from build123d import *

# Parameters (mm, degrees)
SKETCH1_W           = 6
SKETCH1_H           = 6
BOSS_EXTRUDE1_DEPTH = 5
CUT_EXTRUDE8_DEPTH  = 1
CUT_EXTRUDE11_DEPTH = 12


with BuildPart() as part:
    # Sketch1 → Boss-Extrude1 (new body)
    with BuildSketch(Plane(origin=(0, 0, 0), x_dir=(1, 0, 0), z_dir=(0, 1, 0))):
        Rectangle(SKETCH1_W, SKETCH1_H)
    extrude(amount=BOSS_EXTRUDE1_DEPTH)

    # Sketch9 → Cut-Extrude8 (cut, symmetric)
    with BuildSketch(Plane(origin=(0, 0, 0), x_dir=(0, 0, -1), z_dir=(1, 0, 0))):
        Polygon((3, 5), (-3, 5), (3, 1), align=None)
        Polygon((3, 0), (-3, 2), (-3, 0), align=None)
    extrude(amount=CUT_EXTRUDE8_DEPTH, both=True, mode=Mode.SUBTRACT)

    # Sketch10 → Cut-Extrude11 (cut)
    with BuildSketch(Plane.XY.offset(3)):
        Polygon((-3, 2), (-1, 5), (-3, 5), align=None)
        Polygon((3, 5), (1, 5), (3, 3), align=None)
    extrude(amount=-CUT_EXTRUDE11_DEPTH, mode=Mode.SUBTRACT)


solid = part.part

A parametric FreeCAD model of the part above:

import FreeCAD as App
import Part
import Sketcher

V = App.Vector
Q = App.Units.Quantity

doc = App.newDocument("Part")
body = doc.addObject("PartDesign::Body", "Body")

# Sketch on XZ plane
sketch1 = body.newObject("Sketcher::SketchObject", "Sketch")
sketch1.AttachmentSupport = (doc.getObject("XZ_Plane"), [""])
sketch1.MapMode = "FlatFace"
sketch1.addGeometry(Part.LineSegment(V(-3, -3, 0), V(-3, 3, 0)), False)
sketch1.addGeometry(Part.LineSegment(V(-3, 3, 0), V(3, 3, 0)), False)
sketch1.addGeometry(Part.LineSegment(V(3, 3, 0), V(3, -3, 0)), False)
sketch1.addGeometry(Part.LineSegment(V(3, -3, 0), V(-3, -3, 0)), False)
sketch1.addConstraint(Sketcher.Constraint("Coincident", 0, 2, 1, 1))
sketch1.addConstraint(Sketcher.Constraint("Coincident", 1, 2, 2, 1))
sketch1.addConstraint(Sketcher.Constraint("Coincident", 2, 2, 3, 1))
sketch1.addConstraint(Sketcher.Constraint("Coincident", 3, 2, 0, 1))
sketch1.addConstraint(Sketcher.Constraint("Vertical", 0))
sketch1.addConstraint(Sketcher.Constraint("Horizontal", 1))
sketch1.addConstraint(Sketcher.Constraint("Vertical", 2))
sketch1.addConstraint(Sketcher.Constraint("Horizontal", 3))
sketch1.addConstraint(Sketcher.Constraint("Symmetric", 0, 2, 2, 2, -1, 1))
sketch1.addConstraint(Sketcher.Constraint("Equal", 3, 0))
sketch1.addConstraint(Sketcher.Constraint("DistanceX", 1, 1, 1, 2, Q("6 mm")))
pad1 = body.newObject("PartDesign::Pad", "Pad")
pad1.Profile = sketch1
pad1.Length = 5
pad1.Reversed = True

# Sketch on YZ plane
sketch2 = body.newObject("Sketcher::SketchObject", "Sketch001")
sketch2.AttachmentSupport = (doc.getObject("YZ_Plane"), [""])
sketch2.MapMode = "FlatFace"
sketch2.addGeometry(Part.LineSegment(V(5, -3, 0), V(5, 3, 0)), False)
sketch2.addGeometry(Part.LineSegment(V(5, 3, 0), V(1, -3, 0)), False)
sketch2.addGeometry(Part.LineSegment(V(1, -3, 0), V(5, -3, 0)), False)
sketch2.addGeometry(Part.LineSegment(V(0, -3, 0), V(2, 3, 0)), False)
sketch2.addGeometry(Part.LineSegment(V(2, 3, 0), V(0, 3, 0)), False)
sketch2.addGeometry(Part.LineSegment(V(0, 3, 0), V(0, -3, 0)), False)
sketch2.addConstraint(Sketcher.Constraint("Coincident", 0, 2, 1, 1))
sketch2.addConstraint(Sketcher.Constraint("Coincident", 1, 2, 2, 1))
sketch2.addConstraint(Sketcher.Constraint("Coincident", 2, 2, 0, 1))
sketch2.addConstraint(Sketcher.Constraint("Coincident", 3, 2, 4, 1))
sketch2.addConstraint(Sketcher.Constraint("Coincident", 4, 2, 5, 1))
sketch2.addConstraint(Sketcher.Constraint("Coincident", 5, 2, 3, 1))
sketch2.addConstraint(Sketcher.Constraint("Vertical", 0))
sketch2.addConstraint(Sketcher.Constraint("Horizontal", 2))
sketch2.addConstraint(Sketcher.Constraint("Horizontal", 4))
sketch2.addConstraint(Sketcher.Constraint("Vertical", 5))
sketch2.addConstraint(Sketcher.Constraint("Symmetric", 4, 2, 5, 2, -1, 1))
sketch2.addConstraint(Sketcher.Constraint("Horizontal", 0, 2, 3, 2))
sketch2.addConstraint(Sketcher.Constraint("Horizontal", 2, 2, 5, 2))
sketch2.addConstraint(Sketcher.Constraint("DistanceX", 2, 1, 2, 2, Q("4 mm")))
sketch2.addConstraint(Sketcher.Constraint("DistanceX", 4, 2, 4, 1, Q("2 mm")))
sketch2.addConstraint(Sketcher.Constraint("DistanceY", 0, 1, 0, 2, Q("6 mm")))
sketch2.addConstraint(Sketcher.Constraint("DistanceX", -1, 1, 0, 2, Q("5 mm")))
pocket1 = body.newObject("PartDesign::Pocket", "Pocket")
pocket1.Profile = sketch2
pocket1.Length = 2
pocket1.Midplane = True

# Sketch on XY plane
sketch3 = body.newObject("Sketcher::SketchObject", "Sketch002")
sketch3.AttachmentSupport = (doc.getObject("XY_Plane"), [""])
sketch3.MapMode = "FlatFace"
sketch3.AttachmentOffset = App.Placement(V(0, 0, 3), App.Rotation())
sketch3.addGeometry(Part.LineSegment(V(-3, 2, 0), V(-1, 5, 0)), False)
sketch3.addGeometry(Part.LineSegment(V(-1, 5, 0), V(-3, 5, 0)), False)
sketch3.addGeometry(Part.LineSegment(V(-3, 5, 0), V(-3, 2, 0)), False)
sketch3.addGeometry(Part.LineSegment(V(3, 5, 0), V(1, 5, 0)), False)
sketch3.addGeometry(Part.LineSegment(V(1, 5, 0), V(3, 3, 0)), False)
sketch3.addGeometry(Part.LineSegment(V(3, 3, 0), V(3, 5, 0)), False)
sketch3.addConstraint(Sketcher.Constraint("Coincident", 0, 2, 1, 1))
sketch3.addConstraint(Sketcher.Constraint("Coincident", 1, 2, 2, 1))
sketch3.addConstraint(Sketcher.Constraint("Coincident", 2, 2, 0, 1))
sketch3.addConstraint(Sketcher.Constraint("Coincident", 3, 2, 4, 1))
sketch3.addConstraint(Sketcher.Constraint("Coincident", 4, 2, 5, 1))
sketch3.addConstraint(Sketcher.Constraint("Coincident", 5, 2, 3, 1))
sketch3.addConstraint(Sketcher.Constraint("Horizontal", 1))
sketch3.addConstraint(Sketcher.Constraint("Vertical", 2))
sketch3.addConstraint(Sketcher.Constraint("Horizontal", 3))
sketch3.addConstraint(Sketcher.Constraint("Vertical", 5))
sketch3.addConstraint(Sketcher.Constraint("Symmetric", 0, 2, 3, 2, -2))
sketch3.addConstraint(Sketcher.Constraint("Equal", 1, 3))
sketch3.addConstraint(Sketcher.Constraint("Equal", 3, 5))
sketch3.addConstraint(Sketcher.Constraint("DistanceX", 1, 2, 1, 1, Q("2 mm")))
sketch3.addConstraint(Sketcher.Constraint("DistanceY", 2, 2, 2, 1, Q("3 mm")))
sketch3.addConstraint(Sketcher.Constraint("DistanceX", 0, 2, -1, 1, Q("1 mm")))
sketch3.addConstraint(Sketcher.Constraint("DistanceY", -1, 1, 0, 2, Q("5 mm")))
pocket2 = body.newObject("PartDesign::Pocket", "Pocket001")
pocket2.Profile = sketch3
pocket2.Length = 12

doc.recompute()
